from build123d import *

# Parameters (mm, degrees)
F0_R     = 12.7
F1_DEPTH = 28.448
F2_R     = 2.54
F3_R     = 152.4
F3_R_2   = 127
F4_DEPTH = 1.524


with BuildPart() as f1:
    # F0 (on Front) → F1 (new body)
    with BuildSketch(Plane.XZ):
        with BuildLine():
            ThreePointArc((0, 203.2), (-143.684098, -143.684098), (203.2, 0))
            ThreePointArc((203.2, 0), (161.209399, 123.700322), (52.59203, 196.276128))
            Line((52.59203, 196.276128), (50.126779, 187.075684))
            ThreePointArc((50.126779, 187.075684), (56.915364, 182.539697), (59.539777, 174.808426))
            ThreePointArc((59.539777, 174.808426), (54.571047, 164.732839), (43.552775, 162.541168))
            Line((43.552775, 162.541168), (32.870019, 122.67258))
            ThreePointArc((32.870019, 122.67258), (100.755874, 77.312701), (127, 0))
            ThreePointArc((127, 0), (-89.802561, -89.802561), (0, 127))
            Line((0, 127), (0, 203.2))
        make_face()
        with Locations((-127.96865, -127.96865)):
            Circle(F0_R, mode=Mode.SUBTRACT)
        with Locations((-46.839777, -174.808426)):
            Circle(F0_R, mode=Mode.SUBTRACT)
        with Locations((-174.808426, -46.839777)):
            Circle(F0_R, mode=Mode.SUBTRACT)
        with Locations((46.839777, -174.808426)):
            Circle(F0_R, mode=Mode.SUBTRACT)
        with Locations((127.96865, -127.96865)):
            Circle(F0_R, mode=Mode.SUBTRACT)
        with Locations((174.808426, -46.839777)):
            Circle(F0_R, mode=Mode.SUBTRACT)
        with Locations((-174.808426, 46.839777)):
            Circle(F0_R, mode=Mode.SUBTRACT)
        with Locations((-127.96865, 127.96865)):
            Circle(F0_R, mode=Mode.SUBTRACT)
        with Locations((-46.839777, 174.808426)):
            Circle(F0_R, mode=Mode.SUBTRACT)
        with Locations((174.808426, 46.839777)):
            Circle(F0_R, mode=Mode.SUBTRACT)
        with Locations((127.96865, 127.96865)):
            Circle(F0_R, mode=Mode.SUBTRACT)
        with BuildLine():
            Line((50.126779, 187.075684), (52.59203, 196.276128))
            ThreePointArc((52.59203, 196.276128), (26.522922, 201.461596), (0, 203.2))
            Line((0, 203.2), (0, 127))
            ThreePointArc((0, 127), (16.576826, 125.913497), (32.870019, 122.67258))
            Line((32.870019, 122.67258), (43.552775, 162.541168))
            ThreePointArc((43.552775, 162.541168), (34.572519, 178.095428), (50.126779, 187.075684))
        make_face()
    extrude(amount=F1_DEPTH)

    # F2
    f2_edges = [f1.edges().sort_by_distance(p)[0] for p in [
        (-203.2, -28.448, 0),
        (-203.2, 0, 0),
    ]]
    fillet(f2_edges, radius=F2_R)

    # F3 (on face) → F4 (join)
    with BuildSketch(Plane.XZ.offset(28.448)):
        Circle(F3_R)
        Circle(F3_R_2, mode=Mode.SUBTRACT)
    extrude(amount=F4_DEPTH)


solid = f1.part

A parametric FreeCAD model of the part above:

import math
import FreeCAD as App
import Part
import Sketcher
Q = App.Units.Quantity


def edges_at(feature, points):
    """Names of the edges that pass closest to the given points."""
    edges = feature.Shape.Edges
    near = lambda p: min(range(len(edges)), key=lambda i: edges[i].distToShape(Part.Vertex(*p))[0])
    return sorted({f"Edge{near(p) + 1}" for p in points})

doc = App.newDocument("Part")
body = doc.addObject("PartDesign::Body", "Body")

sketch1 = body.newObject("Sketcher::SketchObject", "Sketch")
sketch1.AttachmentSupport = (doc.getObject("XZ_Plane"), [""])
sketch1.MapMode = "FlatFace"
sketch1.addGeometry([
    Part.ArcOfCircle(Part.Circle(App.Vector(0, 0, 0), App.Vector(0, 0, 1), 203.2), math.radians(90), math.radians(360)),
    Part.ArcOfCircle(Part.Circle(App.Vector(0, 0, 0), App.Vector(0, 0, 1), 203.2), math.radians(0), math.radians(75)),
    Part.ArcOfCircle(Part.Circle(App.Vector(0.000002, 0.000009, 0), App.Vector(0, 0, 1), 203.199991), math.radians(75), math.radians(90)),
    Part.ArcOfCircle(Part.Circle(App.Vector(0, 0, 0), App.Vector(0, 0, 1), 127), math.radians(90), math.radians(360)),
    Part.ArcOfCircle(Part.Circle(App.Vector(-0.000007, -0.000059, 0), App.Vector(0, 0, 1), 127.000059), math.radians(75.000004), math.radians(89.999997)),
    Part.ArcOfCircle(Part.Circle(App.Vector(-0.000002, -0.000001, 0), App.Vector(0, 0, 1), 127.000002), math.radians(0.000001), math.radians(74.999999)),
    Part.ArcOfCircle(Part.Circle(App.Vector(46.839778, 174.808427, 0), App.Vector(0, 0, 1), 12.699999), math.radians(-0.000002), math.radians(75.000002)),
    Part.ArcOfCircle(Part.Circle(App.Vector(46.839776, 174.808427, 0), App.Vector(0, 0, 1), 12.700001), math.radians(-104.999996), math.radians(-0.000004)),
    Part.ArcOfCircle(Part.Circle(App.Vector(46.839777, 174.808426, 0), App.Vector(0, 0, 1), 12.7), math.radians(74.999999), math.radians(254.999999)),
    Part.Circle(App.Vector(-127.96865, -127.96865, 0), App.Vector(0, 0, 1), 12.7),
    Part.Circle(App.Vector(-46.839777, -174.808426, 0), App.Vector(0, 0, 1), 12.7),
    Part.Circle(App.Vector(-174.808426, -46.839777, 0), App.Vector(0, 0, 1), 12.7),
    Part.Circle(App.Vector(46.839777, -174.808426, 0), App.Vector(0, 0, 1), 12.7),
    Part.Circle(App.Vector(127.96865, -127.96865, 0), App.Vector(0, 0, 1), 12.7),
    Part.Circle(App.Vector(174.808426, -46.839777, 0), App.Vector(0, 0, 1), 12.7),
    Part.Circle(App.Vector(-174.808426, 46.839777, 0), App.Vector(0, 0, 1), 12.7),
    Part.Circle(App.Vector(-127.96865, 127.96865, 0), App.Vector(0, 0, 1), 12.7),
    Part.Circle(App.Vector(-46.839777, 174.808426, 0), App.Vector(0, 0, 1), 12.7),
    Part.Circle(App.Vector(174.808426, 46.839777, 0), App.Vector(0, 0, 1), 12.7),
    Part.Circle(App.Vector(127.96865, 127.96865, 0), App.Vector(0, 0, 1), 12.7),
], False)
sketch1.addConstraint([
    Sketcher.Constraint("Coincident", 0, 2, 1, 1),
    Sketcher.Constraint("Coincident", 1, 2, 2, 1),
    Sketcher.Constraint("Coincident", 2, 2, 0, 1),
    Sketcher.Constraint("Coincident", 3, 1, 4, 2),
    Sketcher.Constraint("Coincident", 4, 1, 5, 2),
    Sketcher.Constraint("Coincident", 5, 1, 3, 2),
    Sketcher.Constraint("Coincident", 6, 1, 7, 2),
    Sketcher.Constraint("Coincident", 7, 1, 8, 2),
    Sketcher.Constraint("Coincident", 8, 1, 6, 2),
    Sketcher.Constraint("Coincident", 0, 3, -1, 1),
    Sketcher.Constraint("Coincident", 1, 3, -1, 1),
    Sketcher.Constraint("Coincident", 3, 3, -1, 1),
    Sketcher.Constraint("Coincident", 5, 3, -1, 1),
    Sketcher.Constraint("Coincident", 7, 3, 6, 3),
    Sketcher.Constraint("PointOnObject", 2, 3, -2),
    Sketcher.Constraint("PointOnObject", 0, 2, -1),
    Sketcher.Constraint("PointOnObject", 2, 2, -2),
    Sketcher.Constraint("PointOnObject", 3, 1, -2),
    Sketcher.Constraint("PointOnObject", 5, 1, -1),
    Sketcher.Constraint("Diameter", 9, Q("1 in")),
    Sketcher.Constraint("Diameter", 10, Q("1 in")),
    Sketcher.Constraint("Diameter", 11, Q("1 in")),
    Sketcher.Constraint("Diameter", 12, Q("1 in")),
    Sketcher.Constraint("Diameter", 13, Q("1 in")),
    Sketcher.Constraint("Diameter", 14, Q("1 in")),
    Sketcher.Constraint("Diameter", 15, Q("1 in")),
    Sketcher.Constraint("Diameter", 16, Q("1 in")),
    Sketcher.Constraint("Diameter", 17, Q("1 in")),
    Sketcher.Constraint("Diameter", 18, Q("1 in")),
    Sketcher.Constraint("Diameter", 19, Q("1 in")),
    Sketcher.Constraint("Radius", 0, Q("8 in")),
    Sketcher.Constraint("Radius", 3, Q("5 in")),
    Sketcher.Constraint("Radius", 6, Q("0.5 in")),
    Sketcher.Constraint("DistanceX", 8, 3, 6, 1, Q("0.5 in")),
    Sketcher.Constraint("Radius", 4, 127.000059),
    Sketcher.Constraint("DistanceY", 7, 3, 1, 2, 21.467701),
    Sketcher.Constraint("DistanceX", 7, 1, 7, 3, 3.287001),
    Sketcher.Constraint("DistanceX", 6, 3, 8, 1, 3.287001),
    Sketcher.Constraint("DistanceX", 9, 3, -1, 1, 127.96865),
    Sketcher.Constraint("DistanceY", 9, 3, -1, 1, 127.96865),
    Sketcher.Constraint("DistanceX", -1, 1, 13, 3, 127.96865),
    Sketcher.Constraint("DistanceY", 13, 3, -1, 1, 127.96865),
    Sketcher.Constraint("DistanceX", 16, 3, -1, 1, 127.96865),
    Sketcher.Constraint("DistanceY", -1, 1, 16, 3, 127.96865),
    Sketcher.Constraint("DistanceX", -1, 1, 19, 3, 127.96865),
    Sketcher.Constraint("DistanceY", -1, 1, 19, 3, 127.96865),
    Sketcher.Constraint("DistanceX", -1, 1, 1, 2, 52.59203),
    Sketcher.Constraint("DistanceX", -1, 1, 4, 1, 32.870019),
    Sketcher.Constraint("DistanceX", -1, 1, 8, 1, 50.126779),
    Sketcher.Constraint("DistanceX", 10, 3, 4, 3, 46.83977),
    Sketcher.Constraint("DistanceX", 11, 3, 4, 3, 174.808419),
    Sketcher.Constraint("DistanceY", 10, 3, 11, 3, 127.968649),
    Sketcher.Constraint("DistanceX", 5, 3, 12, 3, 46.839779),
    Sketcher.Constraint("DistanceX", 12, 3, 14, 3, 127.968649),
    Sketcher.Constraint("DistanceY", 12, 3, 14, 3, 127.968649),
    Sketcher.Constraint("DistanceY", 5, 3, 15, 3, 46.839778),
    Sketcher.Constraint("DistanceX", 17, 3, 2, 3, 46.839779),
    Sketcher.Constraint("DistanceX", 6, 3, 18, 3, 127.968648),
    Sketcher.Constraint("DistanceY", 18, 3, 6, 3, 127.96865),
    Sketcher.Constraint("DistanceY", 7, 1, 6, 1, 12.267258),
    Sketcher.Constraint("DistanceY", 10, 3, -1, 1, 174.808426),
    Sketcher.Constraint("DistanceY", 12, 3, -1, 1, 174.808426),
    Sketcher.Constraint("DistanceX", 15, 3, -1, 1, 174.808426),
    Sketcher.Constraint("DistanceY", -1, 1, 17, 3, 174.808426),
])
pad1 = body.newObject("PartDesign::Pad", "Pad")
pad1.Profile = sketch1
pad1.Length = Q("1.12 in")
doc.recompute()

fillet = body.newObject("PartDesign::Fillet", "Fillet")
fillet.Base = (pad1, edges_at(pad1, [(-143.684, -28.448, -143.684), (-143.684, 0, -143.684)]))
fillet.Radius = Q("0.1 in")

sketch2 = body.newObject("Sketcher::SketchObject", "Sketch001")
sketch2.AttachmentSupport = (doc.getObject("XZ_Plane"), [""])
sketch2.MapMode = "FlatFace"
sketch2.AttachmentOffset = App.Placement(App.Vector(0, 0, 1.12 * 25.4), App.Rotation())
sketch2.addGeometry([
    Part.Circle(App.Vector(0, 0, 0), App.Vector(0, 0, 1), 152),
    Part.Circle(App.Vector(0, 0, 0), App.Vector(0, 0, 1), 127),
], False)
sketch2.addConstraint([
    Sketcher.Constraint("Coincident", 0, 3, -1, 1),
    Sketcher.Constraint("Coincident", 1, 3, -1, 1),
    Sketcher.Constraint("Diameter", 0, Q("12 in")),
    Sketcher.Constraint("Diameter", 1, Q("10 in")),
])
pad2 = body.newObject("PartDesign::Pad", "Pad001")
pad2.Profile = sketch2
pad2.Length = Q("0.06 in")

doc.recompute()
